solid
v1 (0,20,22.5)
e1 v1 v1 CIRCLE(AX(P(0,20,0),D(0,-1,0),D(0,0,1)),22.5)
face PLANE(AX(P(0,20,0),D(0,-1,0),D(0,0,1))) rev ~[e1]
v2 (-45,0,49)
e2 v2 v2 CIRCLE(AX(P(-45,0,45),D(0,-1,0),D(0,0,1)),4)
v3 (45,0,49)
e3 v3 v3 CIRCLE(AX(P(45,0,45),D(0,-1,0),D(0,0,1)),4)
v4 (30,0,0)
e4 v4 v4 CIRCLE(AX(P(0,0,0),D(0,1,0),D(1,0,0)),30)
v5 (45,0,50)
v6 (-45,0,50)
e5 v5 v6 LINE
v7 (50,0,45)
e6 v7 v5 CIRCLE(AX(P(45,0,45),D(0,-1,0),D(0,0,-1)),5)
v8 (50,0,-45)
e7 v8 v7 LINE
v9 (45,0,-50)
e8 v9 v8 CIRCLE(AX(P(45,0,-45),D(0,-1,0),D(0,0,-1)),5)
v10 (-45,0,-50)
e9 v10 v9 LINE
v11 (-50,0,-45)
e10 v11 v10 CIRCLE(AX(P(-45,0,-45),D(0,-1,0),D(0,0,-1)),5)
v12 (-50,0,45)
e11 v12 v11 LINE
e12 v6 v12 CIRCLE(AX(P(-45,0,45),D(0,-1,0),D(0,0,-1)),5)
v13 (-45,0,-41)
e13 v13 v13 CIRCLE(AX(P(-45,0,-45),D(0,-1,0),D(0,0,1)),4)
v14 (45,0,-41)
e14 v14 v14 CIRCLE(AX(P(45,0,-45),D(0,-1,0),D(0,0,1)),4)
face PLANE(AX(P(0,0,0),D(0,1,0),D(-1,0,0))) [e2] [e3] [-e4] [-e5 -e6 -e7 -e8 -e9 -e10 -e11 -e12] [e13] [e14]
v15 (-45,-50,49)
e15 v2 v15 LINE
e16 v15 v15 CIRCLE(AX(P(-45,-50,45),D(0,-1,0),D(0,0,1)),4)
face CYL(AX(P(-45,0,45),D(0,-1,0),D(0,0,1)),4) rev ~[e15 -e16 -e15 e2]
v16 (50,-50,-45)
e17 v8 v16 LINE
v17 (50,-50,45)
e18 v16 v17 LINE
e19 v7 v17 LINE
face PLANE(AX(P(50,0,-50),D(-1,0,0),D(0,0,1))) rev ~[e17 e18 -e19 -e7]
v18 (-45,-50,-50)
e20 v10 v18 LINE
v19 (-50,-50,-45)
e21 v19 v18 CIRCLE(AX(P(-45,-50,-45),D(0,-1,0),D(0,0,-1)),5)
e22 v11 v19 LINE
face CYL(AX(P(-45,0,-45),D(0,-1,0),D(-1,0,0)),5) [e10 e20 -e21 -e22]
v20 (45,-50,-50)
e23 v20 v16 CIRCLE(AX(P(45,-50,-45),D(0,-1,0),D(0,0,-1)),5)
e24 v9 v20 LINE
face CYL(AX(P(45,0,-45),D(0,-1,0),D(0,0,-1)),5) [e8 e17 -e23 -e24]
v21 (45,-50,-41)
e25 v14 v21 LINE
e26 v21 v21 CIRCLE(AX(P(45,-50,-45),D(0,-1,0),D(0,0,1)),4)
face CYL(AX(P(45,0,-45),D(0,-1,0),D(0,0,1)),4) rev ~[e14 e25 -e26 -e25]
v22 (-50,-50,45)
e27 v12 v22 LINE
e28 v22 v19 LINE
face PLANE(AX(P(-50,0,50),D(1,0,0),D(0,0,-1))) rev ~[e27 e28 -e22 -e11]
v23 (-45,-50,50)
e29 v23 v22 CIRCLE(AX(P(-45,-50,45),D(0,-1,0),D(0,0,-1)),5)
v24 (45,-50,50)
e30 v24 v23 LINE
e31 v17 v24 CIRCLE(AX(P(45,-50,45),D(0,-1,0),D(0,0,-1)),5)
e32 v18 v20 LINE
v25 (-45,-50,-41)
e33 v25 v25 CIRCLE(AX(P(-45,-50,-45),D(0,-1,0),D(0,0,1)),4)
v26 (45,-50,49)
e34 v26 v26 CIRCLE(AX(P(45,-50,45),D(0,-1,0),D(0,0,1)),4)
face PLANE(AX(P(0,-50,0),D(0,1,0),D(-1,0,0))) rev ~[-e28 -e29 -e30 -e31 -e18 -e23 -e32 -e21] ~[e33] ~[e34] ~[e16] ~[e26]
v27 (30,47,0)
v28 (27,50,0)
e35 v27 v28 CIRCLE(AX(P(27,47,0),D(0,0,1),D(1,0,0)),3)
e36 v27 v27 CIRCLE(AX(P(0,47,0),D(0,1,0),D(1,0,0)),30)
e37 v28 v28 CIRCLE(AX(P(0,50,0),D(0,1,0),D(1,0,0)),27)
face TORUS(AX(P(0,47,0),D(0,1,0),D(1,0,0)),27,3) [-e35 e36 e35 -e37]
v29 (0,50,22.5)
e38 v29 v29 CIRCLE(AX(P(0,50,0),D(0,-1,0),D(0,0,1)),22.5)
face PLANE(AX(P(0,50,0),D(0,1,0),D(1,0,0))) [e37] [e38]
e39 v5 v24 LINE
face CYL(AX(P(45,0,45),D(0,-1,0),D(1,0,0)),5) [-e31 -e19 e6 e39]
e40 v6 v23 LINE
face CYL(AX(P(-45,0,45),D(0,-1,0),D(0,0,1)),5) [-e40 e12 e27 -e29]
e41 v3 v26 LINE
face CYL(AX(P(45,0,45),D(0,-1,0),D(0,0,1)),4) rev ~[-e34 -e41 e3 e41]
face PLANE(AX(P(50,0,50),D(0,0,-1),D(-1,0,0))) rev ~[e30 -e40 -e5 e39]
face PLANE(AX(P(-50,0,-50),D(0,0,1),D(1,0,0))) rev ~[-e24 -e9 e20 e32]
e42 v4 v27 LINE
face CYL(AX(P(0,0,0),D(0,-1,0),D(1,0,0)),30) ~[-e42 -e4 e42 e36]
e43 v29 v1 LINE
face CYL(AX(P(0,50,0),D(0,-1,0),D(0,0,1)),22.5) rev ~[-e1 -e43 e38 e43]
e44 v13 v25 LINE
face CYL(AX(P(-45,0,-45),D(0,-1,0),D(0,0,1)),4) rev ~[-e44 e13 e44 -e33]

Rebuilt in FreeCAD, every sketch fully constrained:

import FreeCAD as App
import Part
import Sketcher
from FreeCAD import Vector
Q = App.Units.Quantity


def edges_at(feature, points):
    """Names of the edges that pass closest to the given points."""
    edges = feature.Shape.Edges
    near = lambda p: min(range(len(edges)), key=lambda i: edges[i].distToShape(Part.Vertex(*p))[0])
    return sorted({f"Edge{near(p) + 1}" for p in points})

doc = App.newDocument("Part")
params = doc.addObject("Spreadsheet::Sheet", "Params")
for row, (alias, value) in enumerate([
    ("sketch1_width", "100 mm"),
    ("pad1_length", "50 mm"),
    ("sketch2_diameter", "60 mm"),
    ("pad2_length", "50 mm"),
    ("sketch3_diameter", "45 mm"),
    ("hole_diameter", "45 mm"),
    ("hole_depth", "30 mm"),
    ("fillet_radius", "3 mm"),
    ("fillet2_radius", "5 mm"),
    ("fillet3_radius", "5 mm"),
    ("fillet4_radius", "5 mm"),
    ("fillet5_radius", "5 mm"),
    ("sketch4_diameter", "8 mm"),
    ("hole2_diameter", "8 mm"),
    ("sketch5_diameter", "8 mm"),
    ("hole3_diameter", "8 mm"),
    ("sketch6_diameter", "8 mm"),
    ("hole4_diameter", "8 mm"),
    ("sketch7_diameter", "8 mm"),
    ("hole5_diameter", "8 mm"),
], start=1):
    params.set(f"A{row}", alias)
    params.set(f"B{row}", "=" + value)
    params.setAlias(f"B{row}", alias)

body = doc.addObject("PartDesign::Body", "Body")

# Sketch on XZ plane
sketch1 = body.newObject("Sketcher::SketchObject", "Sketch")
sketch1.AttachmentSupport = (doc.getObject("XZ_Plane"), [""])
sketch1.MapMode = "FlatFace"
sketch1.addGeometry(Part.LineSegment(Vector(-50, 50, 0), Vector(50, 50, 0)), False)
sketch1.addGeometry(Part.LineSegment(Vector(50, 50, 0), Vector(50, -50, 0)), False)
sketch1.addGeometry(Part.LineSegment(Vector(50, -50, 0), Vector(-50, -50, 0)), False)
sketch1.addGeometry(Part.LineSegment(Vector(-50, -50, 0), Vector(-50, 50, 0)), False)
sketch1.addConstraint(Sketcher.Constraint("Coincident", 0, 2, 1, 1))
sketch1.addConstraint(Sketcher.Constraint("Coincident", 1, 2, 2, 1))
sketch1.addConstraint(Sketcher.Constraint("Coincident", 2, 2, 3, 1))
sketch1.addConstraint(Sketcher.Constraint("Coincident", 3, 2, 0, 1))
sketch1.addConstraint(Sketcher.Constraint("Horizontal", 0))
sketch1.addConstraint(Sketcher.Constraint("Vertical", 1))
sketch1.addConstraint(Sketcher.Constraint("Horizontal", 2))
sketch1.addConstraint(Sketcher.Constraint("Vertical", 3))
sketch1.addConstraint(Sketcher.Constraint("Symmetric", 0, 2, 2, 2, -1, 1))
sketch1.addConstraint(Sketcher.Constraint("Equal", 2, 1))
sketch1.addConstraint(Sketcher.Constraint("DistanceX", 0, 1, 0, 2, Q("100 mm")))
sketch1.setExpression("Constraints[10]", "Params.sketch1_width")
pad1 = body.newObject("PartDesign::Pad", "Pad")
pad1.Profile = sketch1
pad1.setExpression("Length", "Params.pad1_length")

# Sketch on XZ plane
sketch2 = body.newObject("Sketcher::SketchObject", "Sketch001")
sketch2.AttachmentSupport = (doc.getObject("XZ_Plane"), [""])
sketch2.MapMode = "FlatFace"
sketch2.addGeometry(Part.Circle(Vector(0, 0, 0), Vector(0, 0, 1), 30), False)
sketch2.addConstraint(Sketcher.Constraint("Coincident", 0, 3, -1, 1))
sketch2.addConstraint(Sketcher.Constraint("Diameter", 0, Q("60 mm")))
sketch2.setExpression("Constraints[1]", "Params.sketch2_diameter")
pad2 = body.newObject("PartDesign::Pad", "Pad001")
pad2.Profile = sketch2
pad2.setExpression("Length", "Params.pad2_length")
pad2.Reversed = True

# Sketch on XZ plane
sketch3 = body.newObject("Sketcher::SketchObject", "Sketch002")
sketch3.AttachmentSupport = (doc.getObject("XZ_Plane"), [""])
sketch3.MapMode = "FlatFace"
sketch3.AttachmentOffset = App.Placement(Vector(0, 0, -50), App.Rotation())
sketch3.addGeometry(Part.Circle(Vector(0, 0, 0), Vector(0, 0, 1), 22), False)
sketch3.addConstraint(Sketcher.Constraint("Coincident", 0, 3, -1, 1))
sketch3.addConstraint(Sketcher.Constraint("Diameter", 0, Q("45 mm")))
sketch3.setExpression("Constraints[1]", "Params.sketch3_diameter")
doc.recompute()
hole = body.newObject("PartDesign::Hole", "Hole")
hole.Profile = sketch3
hole.ThreadType = "None"
hole.setExpression("Diameter", "Params.hole_diameter")
hole.DepthType = "Dimension"
hole.setExpression("Depth", "Params.hole_depth")
hole.DrillPoint = "Flat"
hole.Reversed = True
doc.recompute()

fillet = body.newObject("PartDesign::Fillet", "Fillet")
fillet.Base = (hole, edges_at(hole, [(-30, 50, 0)]))
fillet.setExpression("Radius", "Params.fillet_radius")
doc.recompute()

fillet2 = body.newObject("PartDesign::Fillet", "Fillet001")
fillet2.Base = (fillet, edges_at(fillet, [(-50, -25, 50)]))
fillet2.setExpression("Radius", "Params.fillet2_radius")
doc.recompute()

fillet3 = body.newObject("PartDesign::Fillet", "Fillet002")
fillet3.Base = (fillet2, edges_at(fillet2, [(-50, -25, -50)]))
fillet3.setExpression("Radius", "Params.fillet3_radius")
doc.recompute()

fillet4 = body.newObject("PartDesign::Fillet", "Fillet003")
fillet4.Base = (fillet3, edges_at(fillet3, [(50, -25, -50)]))
fillet4.setExpression("Radius", "Params.fillet4_radius")
doc.recompute()

fillet5 = body.newObject("PartDesign::Fillet", "Fillet004")
fillet5.Base = (fillet4, edges_at(fillet4, [(50, -25, 50)]))
fillet5.setExpression("Radius", "Params.fillet5_radius")

# Sketch on XZ plane
sketch4 = body.newObject("Sketcher::SketchObject", "Sketch003")
sketch4.AttachmentSupport = (doc.getObject("XZ_Plane"), [""])
sketch4.MapMode = "FlatFace"
sketch4.addGeometry(Part.Circle(Vector(45, -45, 0), Vector(0, 0, 1), 4), False)
sketch4.addConstraint(Sketcher.Constraint("Diameter", 0, Q("8 mm")))
sketch4.addConstraint(Sketcher.Constraint("DistanceX", -1, 1, 0, 3, Q("45 mm")))
sketch4.addConstraint(Sketcher.Constraint("DistanceY", 0, 3, -1, 1, Q("45 mm")))
sketch4.setExpression("Constraints[0]", "Params.sketch4_diameter")
doc.recompute()
hole2 = body.newObject("PartDesign::Hole", "Hole001")
hole2.Profile = sketch4
hole2.ThreadType = "None"
hole2.setExpression("Diameter", "Params.hole2_diameter")
hole2.DepthType = "ThroughAll"
hole2.Reversed = True

# Sketch on XZ plane
sketch5 = body.newObject("Sketcher::SketchObject", "Sketch004")
sketch5.AttachmentSupport = (doc.getObject("XZ_Plane"), [""])
sketch5.MapMode = "FlatFace"
sketch5.addGeometry(Part.Circle(Vector(45, 45, 0), Vector(0, 0, 1), 4), False)
sketch5.addConstraint(Sketcher.Constraint("Diameter", 0, Q("8 mm")))
sketch5.addConstraint(Sketcher.Constraint("DistanceX", -1, 1, 0, 3, Q("45 mm")))
sketch5.addConstraint(Sketcher.Constraint("DistanceY", -1, 1, 0, 3, Q("45 mm")))
sketch5.setExpression("Constraints[0]", "Params.sketch5_diameter")
doc.recompute()
hole3 = body.newObject("PartDesign::Hole", "Hole002")
hole3.Profile = sketch5
hole3.ThreadType = "None"
hole3.setExpression("Diameter", "Params.hole3_diameter")
hole3.DepthType = "ThroughAll"
hole3.Reversed = True

# Sketch on XZ plane
sketch6 = body.newObject("Sketcher::SketchObject", "Sketch005")
sketch6.AttachmentSupport = (doc.getObject("XZ_Plane"), [""])
sketch6.MapMode = "FlatFace"
sketch6.addGeometry(Part.Circle(Vector(-45, 45, 0), Vector(0, 0, 1), 4), False)
sketch6.addConstraint(Sketcher.Constraint("Diameter", 0, Q("8 mm")))
sketch6.addConstraint(Sketcher.Constraint("DistanceX", 0, 3, -1, 1, Q("45 mm")))
sketch6.addConstraint(Sketcher.Constraint("DistanceY", -1, 1, 0, 3, Q("45 mm")))
sketch6.setExpression("Constraints[0]", "Params.sketch6_diameter")
doc.recompute()
hole4 = body.newObject("PartDesign::Hole", "Hole003")
hole4.Profile = sketch6
hole4.ThreadType = "None"
hole4.setExpression("Diameter", "Params.hole4_diameter")
hole4.DepthType = "ThroughAll"
hole4.Reversed = True

# Sketch on XZ plane
sketch7 = body.newObject("Sketcher::SketchObject", "Sketch006")
sketch7.AttachmentSupport = (doc.getObject("XZ_Plane"), [""])
sketch7.MapMode = "FlatFace"
sketch7.addGeometry(Part.Circle(Vector(-45, -45, 0), Vector(0, 0, 1), 4), False)
sketch7.addConstraint(Sketcher.Constraint("Diameter", 0, Q("8 mm")))
sketch7.addConstraint(Sketcher.Constraint("DistanceX", 0, 3, -1, 1, Q("45 mm")))
sketch7.addConstraint(Sketcher.Constraint("DistanceY", 0, 3, -1, 1, Q("45 mm")))
sketch7.setExpression("Constraints[0]", "Params.sketch7_diameter")
doc.recompute()
hole5 = body.newObject("PartDesign::Hole", "Hole004")
hole5.Profile = sketch7
hole5.ThreadType = "None"
hole5.setExpression("Diameter", "Params.hole5_diameter")
hole5.DepthType = "ThroughAll"
hole5.Reversed = True

doc.recompute()
